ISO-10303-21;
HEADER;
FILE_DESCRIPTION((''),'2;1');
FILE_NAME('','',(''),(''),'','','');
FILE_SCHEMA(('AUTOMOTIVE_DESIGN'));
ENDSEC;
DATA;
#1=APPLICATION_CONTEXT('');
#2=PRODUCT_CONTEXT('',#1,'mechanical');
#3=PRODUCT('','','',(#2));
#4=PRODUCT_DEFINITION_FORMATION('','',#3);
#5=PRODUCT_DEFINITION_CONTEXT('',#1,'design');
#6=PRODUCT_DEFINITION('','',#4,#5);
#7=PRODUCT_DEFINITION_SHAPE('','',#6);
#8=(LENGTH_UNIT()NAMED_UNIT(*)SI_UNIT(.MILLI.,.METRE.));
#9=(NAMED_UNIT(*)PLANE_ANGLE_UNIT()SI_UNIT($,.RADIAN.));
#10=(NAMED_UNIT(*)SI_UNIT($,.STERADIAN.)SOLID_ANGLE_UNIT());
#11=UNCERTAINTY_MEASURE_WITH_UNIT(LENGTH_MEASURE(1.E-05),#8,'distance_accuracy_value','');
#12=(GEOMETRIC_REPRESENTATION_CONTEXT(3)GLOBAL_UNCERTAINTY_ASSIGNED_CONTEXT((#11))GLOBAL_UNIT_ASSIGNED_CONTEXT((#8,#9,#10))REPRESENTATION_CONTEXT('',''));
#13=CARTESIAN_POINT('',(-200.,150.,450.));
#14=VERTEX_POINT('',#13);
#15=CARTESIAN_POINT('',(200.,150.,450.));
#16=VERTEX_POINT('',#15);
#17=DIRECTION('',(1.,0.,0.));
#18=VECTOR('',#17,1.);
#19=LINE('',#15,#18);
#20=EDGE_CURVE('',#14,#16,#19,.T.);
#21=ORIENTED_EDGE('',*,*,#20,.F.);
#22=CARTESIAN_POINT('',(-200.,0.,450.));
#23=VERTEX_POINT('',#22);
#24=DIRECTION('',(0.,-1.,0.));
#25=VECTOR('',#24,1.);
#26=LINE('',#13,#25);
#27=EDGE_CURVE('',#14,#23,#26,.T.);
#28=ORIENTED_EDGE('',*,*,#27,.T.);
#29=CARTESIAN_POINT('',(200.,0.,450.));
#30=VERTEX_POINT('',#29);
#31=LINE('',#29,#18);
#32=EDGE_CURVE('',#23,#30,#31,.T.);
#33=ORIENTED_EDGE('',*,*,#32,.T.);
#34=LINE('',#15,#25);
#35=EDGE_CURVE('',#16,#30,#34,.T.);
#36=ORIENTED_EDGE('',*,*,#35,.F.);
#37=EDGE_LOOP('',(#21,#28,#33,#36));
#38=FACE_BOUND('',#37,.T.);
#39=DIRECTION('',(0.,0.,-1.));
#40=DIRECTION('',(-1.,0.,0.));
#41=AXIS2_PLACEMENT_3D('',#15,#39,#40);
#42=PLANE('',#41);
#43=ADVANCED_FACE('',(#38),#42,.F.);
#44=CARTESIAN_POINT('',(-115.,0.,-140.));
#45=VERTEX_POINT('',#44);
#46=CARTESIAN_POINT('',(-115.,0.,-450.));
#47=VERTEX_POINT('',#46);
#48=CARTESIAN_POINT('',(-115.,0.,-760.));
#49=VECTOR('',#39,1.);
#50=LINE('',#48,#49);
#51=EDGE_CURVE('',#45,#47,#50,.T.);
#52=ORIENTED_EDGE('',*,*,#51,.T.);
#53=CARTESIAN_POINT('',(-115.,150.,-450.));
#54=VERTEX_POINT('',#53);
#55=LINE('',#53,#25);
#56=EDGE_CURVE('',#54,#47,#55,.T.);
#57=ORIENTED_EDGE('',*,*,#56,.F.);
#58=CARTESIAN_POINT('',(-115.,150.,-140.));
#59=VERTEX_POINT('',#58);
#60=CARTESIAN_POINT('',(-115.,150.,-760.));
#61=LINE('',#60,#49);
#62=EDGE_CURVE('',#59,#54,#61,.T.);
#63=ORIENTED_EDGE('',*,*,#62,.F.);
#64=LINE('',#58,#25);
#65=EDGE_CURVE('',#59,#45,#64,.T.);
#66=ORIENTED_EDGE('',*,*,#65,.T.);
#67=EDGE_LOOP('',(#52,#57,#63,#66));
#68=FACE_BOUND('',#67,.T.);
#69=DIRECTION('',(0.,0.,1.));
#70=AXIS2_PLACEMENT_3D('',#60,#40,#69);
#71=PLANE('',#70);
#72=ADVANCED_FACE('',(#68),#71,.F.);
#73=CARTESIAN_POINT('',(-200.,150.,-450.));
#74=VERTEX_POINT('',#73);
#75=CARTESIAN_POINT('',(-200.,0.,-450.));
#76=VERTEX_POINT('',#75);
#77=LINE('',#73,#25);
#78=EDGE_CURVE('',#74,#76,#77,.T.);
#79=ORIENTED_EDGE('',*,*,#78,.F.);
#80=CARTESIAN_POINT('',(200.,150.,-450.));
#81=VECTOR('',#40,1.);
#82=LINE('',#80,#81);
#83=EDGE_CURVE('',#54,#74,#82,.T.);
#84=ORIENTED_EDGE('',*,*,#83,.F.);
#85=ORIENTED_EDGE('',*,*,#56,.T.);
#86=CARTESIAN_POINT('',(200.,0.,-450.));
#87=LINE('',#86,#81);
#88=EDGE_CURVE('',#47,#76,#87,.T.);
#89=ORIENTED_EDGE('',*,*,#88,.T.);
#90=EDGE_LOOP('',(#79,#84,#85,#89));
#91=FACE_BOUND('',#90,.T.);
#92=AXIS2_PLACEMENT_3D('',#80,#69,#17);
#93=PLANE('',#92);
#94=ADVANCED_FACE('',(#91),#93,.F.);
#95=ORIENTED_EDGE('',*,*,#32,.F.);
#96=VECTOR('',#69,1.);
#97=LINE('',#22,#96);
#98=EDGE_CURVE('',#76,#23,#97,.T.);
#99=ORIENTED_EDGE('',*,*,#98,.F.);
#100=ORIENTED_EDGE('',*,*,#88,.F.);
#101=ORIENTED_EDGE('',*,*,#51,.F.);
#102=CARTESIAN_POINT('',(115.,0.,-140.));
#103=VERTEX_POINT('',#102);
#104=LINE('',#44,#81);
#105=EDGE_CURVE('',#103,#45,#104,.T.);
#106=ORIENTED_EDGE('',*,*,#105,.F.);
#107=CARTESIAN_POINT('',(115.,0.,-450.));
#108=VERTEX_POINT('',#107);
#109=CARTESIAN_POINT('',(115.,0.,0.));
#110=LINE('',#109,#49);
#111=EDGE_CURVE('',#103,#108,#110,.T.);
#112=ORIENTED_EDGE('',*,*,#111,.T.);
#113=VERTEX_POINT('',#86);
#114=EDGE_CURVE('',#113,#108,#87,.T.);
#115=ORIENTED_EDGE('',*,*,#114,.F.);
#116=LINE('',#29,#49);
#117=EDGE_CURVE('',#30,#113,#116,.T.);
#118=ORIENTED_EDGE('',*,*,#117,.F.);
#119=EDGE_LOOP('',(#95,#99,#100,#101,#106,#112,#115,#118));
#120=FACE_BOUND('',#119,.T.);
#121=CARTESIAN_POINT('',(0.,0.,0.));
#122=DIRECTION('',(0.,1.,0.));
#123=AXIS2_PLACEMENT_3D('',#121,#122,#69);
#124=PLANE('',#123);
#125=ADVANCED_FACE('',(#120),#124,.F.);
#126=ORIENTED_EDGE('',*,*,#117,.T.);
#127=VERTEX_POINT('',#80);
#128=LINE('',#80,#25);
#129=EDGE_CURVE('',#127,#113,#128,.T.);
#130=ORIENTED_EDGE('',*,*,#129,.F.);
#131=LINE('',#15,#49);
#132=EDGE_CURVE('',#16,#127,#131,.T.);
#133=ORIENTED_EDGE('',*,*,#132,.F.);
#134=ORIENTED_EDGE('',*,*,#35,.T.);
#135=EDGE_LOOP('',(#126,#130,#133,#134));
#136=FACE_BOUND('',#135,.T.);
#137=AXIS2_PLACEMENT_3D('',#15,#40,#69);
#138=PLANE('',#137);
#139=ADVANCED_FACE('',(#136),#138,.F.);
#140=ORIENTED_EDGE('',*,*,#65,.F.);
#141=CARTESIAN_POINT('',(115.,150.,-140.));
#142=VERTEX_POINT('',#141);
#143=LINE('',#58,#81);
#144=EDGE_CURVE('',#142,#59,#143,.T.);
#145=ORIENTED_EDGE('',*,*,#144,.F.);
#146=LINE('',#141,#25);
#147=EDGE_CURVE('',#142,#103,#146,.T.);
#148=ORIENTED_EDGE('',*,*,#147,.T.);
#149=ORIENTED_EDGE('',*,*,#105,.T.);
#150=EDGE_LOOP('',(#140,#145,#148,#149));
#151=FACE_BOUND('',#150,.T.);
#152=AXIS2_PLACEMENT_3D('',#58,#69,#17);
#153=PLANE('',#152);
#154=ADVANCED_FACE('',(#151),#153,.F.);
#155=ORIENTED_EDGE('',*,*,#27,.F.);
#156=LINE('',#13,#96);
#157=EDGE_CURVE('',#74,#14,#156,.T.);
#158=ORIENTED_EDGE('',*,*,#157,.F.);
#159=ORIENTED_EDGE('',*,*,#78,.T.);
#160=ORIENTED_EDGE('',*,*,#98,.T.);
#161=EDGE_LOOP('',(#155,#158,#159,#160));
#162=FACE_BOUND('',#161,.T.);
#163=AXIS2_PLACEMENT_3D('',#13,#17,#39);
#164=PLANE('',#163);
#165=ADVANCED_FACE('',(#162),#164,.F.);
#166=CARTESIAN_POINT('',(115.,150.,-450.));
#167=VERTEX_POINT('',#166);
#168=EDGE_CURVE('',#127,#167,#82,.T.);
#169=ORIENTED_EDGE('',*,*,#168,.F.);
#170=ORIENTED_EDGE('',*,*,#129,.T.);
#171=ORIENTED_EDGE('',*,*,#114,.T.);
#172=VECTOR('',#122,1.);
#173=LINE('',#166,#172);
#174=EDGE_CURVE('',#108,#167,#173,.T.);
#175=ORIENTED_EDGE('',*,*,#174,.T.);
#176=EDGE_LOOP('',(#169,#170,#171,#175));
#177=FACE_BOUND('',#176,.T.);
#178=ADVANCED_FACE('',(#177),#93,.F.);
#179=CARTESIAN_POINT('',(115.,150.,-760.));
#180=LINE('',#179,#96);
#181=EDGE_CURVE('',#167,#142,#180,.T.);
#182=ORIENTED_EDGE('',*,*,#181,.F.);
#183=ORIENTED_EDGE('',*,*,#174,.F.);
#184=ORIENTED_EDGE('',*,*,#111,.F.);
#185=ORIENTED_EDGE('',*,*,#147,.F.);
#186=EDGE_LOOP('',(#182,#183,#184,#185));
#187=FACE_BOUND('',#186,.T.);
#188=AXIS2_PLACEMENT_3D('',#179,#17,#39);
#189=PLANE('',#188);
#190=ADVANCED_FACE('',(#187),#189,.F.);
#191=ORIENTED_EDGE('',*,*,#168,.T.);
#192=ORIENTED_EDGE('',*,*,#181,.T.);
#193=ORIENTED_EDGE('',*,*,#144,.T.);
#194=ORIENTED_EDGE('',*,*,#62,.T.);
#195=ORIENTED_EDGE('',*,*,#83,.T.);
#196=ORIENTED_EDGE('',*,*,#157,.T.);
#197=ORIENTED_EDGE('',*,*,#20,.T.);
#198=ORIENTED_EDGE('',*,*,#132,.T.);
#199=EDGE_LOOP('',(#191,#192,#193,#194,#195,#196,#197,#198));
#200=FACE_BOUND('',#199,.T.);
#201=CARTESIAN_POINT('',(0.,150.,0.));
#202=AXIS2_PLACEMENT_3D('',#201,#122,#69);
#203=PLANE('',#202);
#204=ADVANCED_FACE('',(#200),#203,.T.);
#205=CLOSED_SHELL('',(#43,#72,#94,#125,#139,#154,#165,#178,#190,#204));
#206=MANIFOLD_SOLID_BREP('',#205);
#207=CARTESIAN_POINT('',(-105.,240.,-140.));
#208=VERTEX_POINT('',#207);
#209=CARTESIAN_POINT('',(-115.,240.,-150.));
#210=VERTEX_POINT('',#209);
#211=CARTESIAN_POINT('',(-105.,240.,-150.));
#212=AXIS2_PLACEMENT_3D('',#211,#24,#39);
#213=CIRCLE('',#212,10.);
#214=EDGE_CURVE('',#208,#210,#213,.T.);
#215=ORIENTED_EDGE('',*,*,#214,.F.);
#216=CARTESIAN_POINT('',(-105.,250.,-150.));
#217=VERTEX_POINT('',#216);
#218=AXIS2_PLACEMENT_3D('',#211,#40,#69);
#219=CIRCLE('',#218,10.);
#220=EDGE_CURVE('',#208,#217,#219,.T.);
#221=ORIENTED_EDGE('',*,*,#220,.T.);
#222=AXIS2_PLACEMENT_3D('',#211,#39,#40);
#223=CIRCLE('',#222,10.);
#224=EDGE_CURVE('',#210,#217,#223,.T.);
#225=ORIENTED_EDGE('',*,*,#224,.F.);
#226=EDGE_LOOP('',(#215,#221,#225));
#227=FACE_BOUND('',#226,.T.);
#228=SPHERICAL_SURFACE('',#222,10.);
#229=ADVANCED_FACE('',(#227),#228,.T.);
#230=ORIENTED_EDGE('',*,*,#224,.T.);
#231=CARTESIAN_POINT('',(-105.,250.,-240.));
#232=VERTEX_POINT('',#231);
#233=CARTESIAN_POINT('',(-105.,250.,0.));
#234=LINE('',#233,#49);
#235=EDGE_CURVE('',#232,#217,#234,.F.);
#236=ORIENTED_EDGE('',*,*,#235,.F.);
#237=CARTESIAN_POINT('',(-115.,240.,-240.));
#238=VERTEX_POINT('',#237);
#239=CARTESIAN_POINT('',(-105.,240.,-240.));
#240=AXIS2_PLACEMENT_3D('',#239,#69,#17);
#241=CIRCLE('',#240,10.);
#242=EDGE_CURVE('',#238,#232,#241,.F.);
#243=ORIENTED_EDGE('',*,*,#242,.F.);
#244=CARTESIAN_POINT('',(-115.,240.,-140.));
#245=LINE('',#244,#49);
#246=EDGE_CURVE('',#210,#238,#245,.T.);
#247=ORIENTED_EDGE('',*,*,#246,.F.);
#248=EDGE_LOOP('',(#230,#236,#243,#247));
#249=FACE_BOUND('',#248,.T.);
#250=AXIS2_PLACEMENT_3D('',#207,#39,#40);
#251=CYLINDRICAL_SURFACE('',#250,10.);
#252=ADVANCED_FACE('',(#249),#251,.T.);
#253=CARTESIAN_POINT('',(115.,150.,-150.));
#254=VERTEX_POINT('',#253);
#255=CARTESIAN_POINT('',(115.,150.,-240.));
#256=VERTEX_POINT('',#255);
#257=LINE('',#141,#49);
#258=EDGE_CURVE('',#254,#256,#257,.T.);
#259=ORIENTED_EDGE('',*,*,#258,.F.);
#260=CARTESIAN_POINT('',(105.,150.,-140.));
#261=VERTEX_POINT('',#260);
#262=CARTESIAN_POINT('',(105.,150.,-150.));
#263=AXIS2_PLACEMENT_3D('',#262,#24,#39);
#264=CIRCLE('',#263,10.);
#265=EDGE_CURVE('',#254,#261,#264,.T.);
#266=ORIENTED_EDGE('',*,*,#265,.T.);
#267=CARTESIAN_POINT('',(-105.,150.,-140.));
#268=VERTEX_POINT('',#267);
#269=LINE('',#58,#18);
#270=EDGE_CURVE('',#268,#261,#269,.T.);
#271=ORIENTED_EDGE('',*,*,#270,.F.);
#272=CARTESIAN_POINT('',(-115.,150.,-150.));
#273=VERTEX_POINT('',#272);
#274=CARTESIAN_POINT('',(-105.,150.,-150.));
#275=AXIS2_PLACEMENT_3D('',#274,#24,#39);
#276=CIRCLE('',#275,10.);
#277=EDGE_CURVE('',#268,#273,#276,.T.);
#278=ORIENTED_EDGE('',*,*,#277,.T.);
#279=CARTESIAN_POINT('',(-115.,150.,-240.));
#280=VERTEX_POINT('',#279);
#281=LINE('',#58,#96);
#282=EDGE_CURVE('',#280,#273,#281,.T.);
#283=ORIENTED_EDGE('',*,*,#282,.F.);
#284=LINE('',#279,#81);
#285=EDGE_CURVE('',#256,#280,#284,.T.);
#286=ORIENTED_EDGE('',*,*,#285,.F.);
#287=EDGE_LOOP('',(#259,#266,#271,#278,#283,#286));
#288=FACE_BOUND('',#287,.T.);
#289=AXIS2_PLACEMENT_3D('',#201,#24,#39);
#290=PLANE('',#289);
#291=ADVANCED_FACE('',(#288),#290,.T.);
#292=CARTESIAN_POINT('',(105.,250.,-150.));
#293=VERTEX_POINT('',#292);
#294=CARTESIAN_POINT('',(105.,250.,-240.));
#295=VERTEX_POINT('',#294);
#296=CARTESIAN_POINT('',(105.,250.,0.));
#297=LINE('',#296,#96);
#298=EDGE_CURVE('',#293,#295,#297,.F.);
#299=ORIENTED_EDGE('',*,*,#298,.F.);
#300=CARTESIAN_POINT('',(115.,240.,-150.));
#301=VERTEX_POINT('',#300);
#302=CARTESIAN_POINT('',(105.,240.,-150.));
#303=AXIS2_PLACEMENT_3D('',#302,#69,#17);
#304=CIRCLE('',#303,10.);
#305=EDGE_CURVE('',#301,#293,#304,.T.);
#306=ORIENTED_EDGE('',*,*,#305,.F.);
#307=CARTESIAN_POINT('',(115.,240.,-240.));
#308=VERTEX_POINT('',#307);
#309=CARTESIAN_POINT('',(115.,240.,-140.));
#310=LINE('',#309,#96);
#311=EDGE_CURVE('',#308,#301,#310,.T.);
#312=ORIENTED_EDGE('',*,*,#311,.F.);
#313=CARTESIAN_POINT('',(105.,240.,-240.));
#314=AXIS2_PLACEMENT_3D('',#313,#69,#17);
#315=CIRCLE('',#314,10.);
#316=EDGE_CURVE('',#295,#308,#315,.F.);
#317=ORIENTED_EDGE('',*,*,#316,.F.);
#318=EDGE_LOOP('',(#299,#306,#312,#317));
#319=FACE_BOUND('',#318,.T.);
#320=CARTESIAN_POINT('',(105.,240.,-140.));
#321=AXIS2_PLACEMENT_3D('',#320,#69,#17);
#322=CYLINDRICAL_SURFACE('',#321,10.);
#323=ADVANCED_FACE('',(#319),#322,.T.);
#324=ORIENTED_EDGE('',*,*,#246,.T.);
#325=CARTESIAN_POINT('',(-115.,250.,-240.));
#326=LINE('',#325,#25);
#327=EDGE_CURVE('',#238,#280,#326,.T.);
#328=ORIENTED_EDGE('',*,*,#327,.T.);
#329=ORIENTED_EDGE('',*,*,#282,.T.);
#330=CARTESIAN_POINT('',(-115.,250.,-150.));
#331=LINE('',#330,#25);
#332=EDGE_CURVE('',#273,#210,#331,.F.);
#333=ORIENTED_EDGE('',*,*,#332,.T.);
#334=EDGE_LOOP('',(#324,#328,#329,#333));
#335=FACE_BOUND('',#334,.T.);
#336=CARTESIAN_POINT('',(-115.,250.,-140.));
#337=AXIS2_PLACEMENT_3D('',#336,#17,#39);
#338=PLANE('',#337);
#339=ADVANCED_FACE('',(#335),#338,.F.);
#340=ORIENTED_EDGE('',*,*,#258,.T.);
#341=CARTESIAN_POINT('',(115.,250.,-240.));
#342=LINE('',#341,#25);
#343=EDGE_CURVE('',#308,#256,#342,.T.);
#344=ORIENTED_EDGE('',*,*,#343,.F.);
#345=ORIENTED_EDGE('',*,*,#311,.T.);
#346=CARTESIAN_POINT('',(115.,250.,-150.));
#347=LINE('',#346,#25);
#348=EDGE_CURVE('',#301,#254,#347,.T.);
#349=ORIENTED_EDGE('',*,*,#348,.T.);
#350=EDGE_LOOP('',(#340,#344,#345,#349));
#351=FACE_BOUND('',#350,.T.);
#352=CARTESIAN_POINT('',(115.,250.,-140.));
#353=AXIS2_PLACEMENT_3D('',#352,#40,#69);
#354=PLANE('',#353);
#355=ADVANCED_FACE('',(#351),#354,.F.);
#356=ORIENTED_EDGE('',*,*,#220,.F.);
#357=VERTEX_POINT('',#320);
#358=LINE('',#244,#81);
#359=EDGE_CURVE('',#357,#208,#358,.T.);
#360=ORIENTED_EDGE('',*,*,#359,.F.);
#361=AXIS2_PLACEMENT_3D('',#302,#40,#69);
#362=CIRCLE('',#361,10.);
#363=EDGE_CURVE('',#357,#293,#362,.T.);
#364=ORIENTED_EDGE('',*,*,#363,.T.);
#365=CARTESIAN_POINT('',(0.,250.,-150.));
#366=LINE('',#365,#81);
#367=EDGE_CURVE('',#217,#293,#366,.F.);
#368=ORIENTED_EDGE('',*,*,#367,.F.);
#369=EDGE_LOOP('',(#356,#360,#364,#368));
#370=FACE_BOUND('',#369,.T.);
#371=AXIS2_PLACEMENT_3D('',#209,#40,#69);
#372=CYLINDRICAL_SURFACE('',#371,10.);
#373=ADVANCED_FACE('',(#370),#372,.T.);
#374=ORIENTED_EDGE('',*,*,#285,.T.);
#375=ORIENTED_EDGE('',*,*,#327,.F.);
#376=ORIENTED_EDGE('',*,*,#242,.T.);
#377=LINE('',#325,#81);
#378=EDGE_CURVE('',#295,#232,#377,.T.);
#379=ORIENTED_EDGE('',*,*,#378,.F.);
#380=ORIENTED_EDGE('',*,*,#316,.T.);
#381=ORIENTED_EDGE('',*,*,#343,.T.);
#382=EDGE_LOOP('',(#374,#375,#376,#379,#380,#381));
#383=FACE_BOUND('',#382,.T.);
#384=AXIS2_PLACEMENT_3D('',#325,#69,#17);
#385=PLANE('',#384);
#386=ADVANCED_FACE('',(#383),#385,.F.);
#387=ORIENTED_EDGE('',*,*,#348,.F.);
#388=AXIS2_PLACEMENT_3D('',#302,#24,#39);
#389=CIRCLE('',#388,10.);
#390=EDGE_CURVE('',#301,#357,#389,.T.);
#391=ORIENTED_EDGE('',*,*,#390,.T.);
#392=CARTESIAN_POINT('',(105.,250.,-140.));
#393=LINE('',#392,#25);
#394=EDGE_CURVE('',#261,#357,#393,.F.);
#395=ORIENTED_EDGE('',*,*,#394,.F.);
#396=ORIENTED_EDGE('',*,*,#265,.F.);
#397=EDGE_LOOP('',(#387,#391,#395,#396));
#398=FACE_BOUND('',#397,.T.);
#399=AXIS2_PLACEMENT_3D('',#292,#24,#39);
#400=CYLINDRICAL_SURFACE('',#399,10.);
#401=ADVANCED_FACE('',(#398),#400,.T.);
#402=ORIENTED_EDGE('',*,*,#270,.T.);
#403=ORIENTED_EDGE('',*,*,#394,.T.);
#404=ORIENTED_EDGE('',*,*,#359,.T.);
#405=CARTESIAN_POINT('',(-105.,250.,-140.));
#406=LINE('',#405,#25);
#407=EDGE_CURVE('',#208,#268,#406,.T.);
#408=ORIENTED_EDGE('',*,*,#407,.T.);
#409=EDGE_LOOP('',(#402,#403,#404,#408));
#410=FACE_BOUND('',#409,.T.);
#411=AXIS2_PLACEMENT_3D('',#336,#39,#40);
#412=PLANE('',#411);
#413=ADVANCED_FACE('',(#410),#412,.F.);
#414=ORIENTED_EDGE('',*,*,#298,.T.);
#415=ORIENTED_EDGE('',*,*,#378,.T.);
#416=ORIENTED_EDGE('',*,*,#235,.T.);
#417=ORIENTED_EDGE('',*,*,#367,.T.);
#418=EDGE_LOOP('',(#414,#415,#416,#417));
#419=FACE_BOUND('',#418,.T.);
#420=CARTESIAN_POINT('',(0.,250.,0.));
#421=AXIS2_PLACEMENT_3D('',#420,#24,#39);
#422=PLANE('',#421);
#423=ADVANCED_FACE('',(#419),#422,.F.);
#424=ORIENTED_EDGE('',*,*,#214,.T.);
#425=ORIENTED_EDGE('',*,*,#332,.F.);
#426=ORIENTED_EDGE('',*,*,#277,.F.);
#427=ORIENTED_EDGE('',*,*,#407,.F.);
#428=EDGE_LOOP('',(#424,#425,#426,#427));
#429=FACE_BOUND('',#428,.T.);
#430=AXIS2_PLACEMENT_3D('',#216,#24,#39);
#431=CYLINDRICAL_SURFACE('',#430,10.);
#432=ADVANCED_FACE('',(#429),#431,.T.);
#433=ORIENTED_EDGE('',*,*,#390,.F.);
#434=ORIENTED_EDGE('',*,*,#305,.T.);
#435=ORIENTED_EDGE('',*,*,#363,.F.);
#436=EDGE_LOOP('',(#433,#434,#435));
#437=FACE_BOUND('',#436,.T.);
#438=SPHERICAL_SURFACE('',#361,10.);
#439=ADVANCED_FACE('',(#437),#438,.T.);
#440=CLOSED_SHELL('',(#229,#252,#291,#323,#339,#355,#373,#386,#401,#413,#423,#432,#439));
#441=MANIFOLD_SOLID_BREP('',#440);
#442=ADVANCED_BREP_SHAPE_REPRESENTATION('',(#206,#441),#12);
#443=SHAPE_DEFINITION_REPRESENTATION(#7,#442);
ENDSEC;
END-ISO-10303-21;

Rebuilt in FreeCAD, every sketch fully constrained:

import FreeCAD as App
import Part
import Sketcher
from FreeCAD import Vector
Q = App.Units.Quantity


def edges_at(feature, points):
    """Names of the edges that pass closest to the given points."""
    edges = feature.Shape.Edges
    near = lambda p: min(range(len(edges)), key=lambda i: edges[i].distToShape(Part.Vertex(*p))[0])
    return sorted({f"Edge{near(p) + 1}" for p in points})


def add_polygon(sketch, points):
    """Adds a closed chain of lines whose ends are joined by coincident constraints."""
    first, n = sketch.GeometryCount, len(points)
    for a, b in zip(points, points[1:] + points[:1]):
        sketch.addGeometry(Part.LineSegment(App.Vector(*a, 0), App.Vector(*b, 0)), False)
    for i in range(n):
        sketch.addConstraint(Sketcher.Constraint("Coincident", first + i, 2, first + (i + 1) % n, 1))

doc = App.newDocument("Part")
params = doc.addObject("Spreadsheet::Sheet", "Params")
for row, (alias, value) in enumerate([
    ("sketch1_width", "400 mm"),
    ("sketch1_height", "900 mm"),
    ("pad1_length", "150 mm"),
    ("sketch2_width", "230 mm"),
    ("sketch2_height", "620 mm"),
    ("pocket1_length", "150 mm"),
    ("sketch3_width", "230 mm"),
    ("sketch3_height", "100 mm"),
    ("pad2_length", "100 mm"),
    ("fillet_radius", "10 mm"),
    ("fillet2_radius", "10 mm"),
    ("fillet3_radius", "10 mm"),
], start=1):
    params.set(f"A{row}", alias)
    params.set(f"B{row}", "=" + value)
    params.setAlias(f"B{row}", alias)

body = doc.addObject("PartDesign::Body", "Body")

# Sketch on XZ plane
sketch1 = body.newObject("Sketcher::SketchObject", "Sketch")
sketch1.AttachmentSupport = (doc.getObject("XZ_Plane"), [""])
sketch1.MapMode = "FlatFace"
add_polygon(sketch1, [(-200, -450), (-200, 450), (200, 450), (200, -450)])  # lines 0-3
sketch1.addConstraint(Sketcher.Constraint("Vertical", 0))
sketch1.addConstraint(Sketcher.Constraint("Horizontal", 1))
sketch1.addConstraint(Sketcher.Constraint("Vertical", 2))
sketch1.addConstraint(Sketcher.Constraint("Horizontal", 3))
sketch1.addConstraint(Sketcher.Constraint("Symmetric", 0, 2, 2, 2, -1, 1))
sketch1.addConstraint(Sketcher.Constraint("DistanceX", 1, 1, 1, 2, Q("400 mm")))
sketch1.addConstraint(Sketcher.Constraint("DistanceY", 0, 1, 0, 2, Q("900 mm")))
sketch1.setExpression("Constraints[9]", "Params.sketch1_width")
sketch1.setExpression("Constraints[10]", "Params.sketch1_height")
pad1 = body.newObject("PartDesign::Pad", "Pad")
pad1.Profile = sketch1
pad1.setExpression("Length", "Params.pad1_length")
pad1.Reversed = True

# Sketch on XZ plane
sketch2 = body.newObject("Sketcher::SketchObject", "Sketch001")
sketch2.AttachmentSupport = (doc.getObject("XZ_Plane"), [""])
sketch2.MapMode = "FlatFace"
add_polygon(sketch2, [(-115, -140), (-115, -760), (115, -760), (115, -140)])  # lines 0-3
sketch2.addConstraint(Sketcher.Constraint("Vertical", 0))
sketch2.addConstraint(Sketcher.Constraint("Horizontal", 1))
sketch2.addConstraint(Sketcher.Constraint("Vertical", 2))
sketch2.addConstraint(Sketcher.Constraint("Horizontal", 3))
sketch2.addConstraint(Sketcher.Constraint("DistanceX", 1, 1, 1, 2, Q("230 mm")))
sketch2.addConstraint(Sketcher.Constraint("DistanceY", 0, 2, 0, 1, Q("620 mm")))
sketch2.addConstraint(Sketcher.Constraint("DistanceX", 0, 2, -1, 1, Q("115 mm")))
sketch2.addConstraint(Sketcher.Constraint("DistanceY", 0, 2, -1, 1, Q("760 mm")))
sketch2.setExpression("Constraints[8]", "Params.sketch2_width")
sketch2.setExpression("Constraints[9]", "Params.sketch2_height")
pocket1 = body.newObject("PartDesign::Pocket", "Pocket")
pocket1.Profile = sketch2
pocket1.setExpression("Length", "Params.pocket1_length")
body2 = doc.addObject("PartDesign::Body", "Body001")

# Sketch on XZ plane
sketch3 = body2.newObject("Sketcher::SketchObject", "Sketch002")
sketch3.AttachmentSupport = (doc.getObject("XZ_Plane001"), [""])
sketch3.MapMode = "FlatFace"
sketch3.AttachmentOffset = App.Placement(Vector(0, 0, -150), App.Rotation())
add_polygon(sketch3, [(-115, -240), (-115, -140), (115, -140), (115, -240)])  # lines 0-3
sketch3.addConstraint(Sketcher.Constraint("Vertical", 0))
sketch3.addConstraint(Sketcher.Constraint("Horizontal", 1))
sketch3.addConstraint(Sketcher.Constraint("Vertical", 2))
sketch3.addConstraint(Sketcher.Constraint("Horizontal", 3))
sketch3.addConstraint(Sketcher.Constraint("DistanceX", 1, 1, 1, 2, Q("230 mm")))
sketch3.addConstraint(Sketcher.Constraint("DistanceY", 0, 1, 0, 2, Q("100 mm")))
sketch3.addConstraint(Sketcher.Constraint("DistanceX", 0, 2, -1, 1, Q("115 mm")))
sketch3.addConstraint(Sketcher.Constraint("DistanceY", 0, 2, -1, 1, Q("140 mm")))
sketch3.setExpression("Constraints[8]", "Params.sketch3_width")
sketch3.setExpression("Constraints[9]", "Params.sketch3_height")
pad2 = body2.newObject("PartDesign::Pad", "Pad001")
pad2.Profile = sketch3
pad2.setExpression("Length", "Params.pad2_length")
pad2.Reversed = True
doc.recompute()

fillet = body2.newObject("PartDesign::Fillet", "Fillet")
fillet.Base = (pad2, edges_at(pad2, [(-115, 250, -190)]))
fillet.setExpression("Radius", "Params.fillet_radius")
doc.recompute()

fillet2 = body2.newObject("PartDesign::Fillet", "Fillet001")
fillet2.Base = (fillet, edges_at(fillet, [(-115, 195, -140), (5, 250, -140)]))
fillet2.setExpression("Radius", "Params.fillet2_radius")
doc.recompute()

fillet3 = body2.newObject("PartDesign::Fillet", "Fillet002")
fillet3.Base = (fillet2, edges_at(fillet2, [(115, 195, -140), (115, 250, -195)]))
fillet3.setExpression("Radius", "Params.fillet3_radius")

doc.recompute()
